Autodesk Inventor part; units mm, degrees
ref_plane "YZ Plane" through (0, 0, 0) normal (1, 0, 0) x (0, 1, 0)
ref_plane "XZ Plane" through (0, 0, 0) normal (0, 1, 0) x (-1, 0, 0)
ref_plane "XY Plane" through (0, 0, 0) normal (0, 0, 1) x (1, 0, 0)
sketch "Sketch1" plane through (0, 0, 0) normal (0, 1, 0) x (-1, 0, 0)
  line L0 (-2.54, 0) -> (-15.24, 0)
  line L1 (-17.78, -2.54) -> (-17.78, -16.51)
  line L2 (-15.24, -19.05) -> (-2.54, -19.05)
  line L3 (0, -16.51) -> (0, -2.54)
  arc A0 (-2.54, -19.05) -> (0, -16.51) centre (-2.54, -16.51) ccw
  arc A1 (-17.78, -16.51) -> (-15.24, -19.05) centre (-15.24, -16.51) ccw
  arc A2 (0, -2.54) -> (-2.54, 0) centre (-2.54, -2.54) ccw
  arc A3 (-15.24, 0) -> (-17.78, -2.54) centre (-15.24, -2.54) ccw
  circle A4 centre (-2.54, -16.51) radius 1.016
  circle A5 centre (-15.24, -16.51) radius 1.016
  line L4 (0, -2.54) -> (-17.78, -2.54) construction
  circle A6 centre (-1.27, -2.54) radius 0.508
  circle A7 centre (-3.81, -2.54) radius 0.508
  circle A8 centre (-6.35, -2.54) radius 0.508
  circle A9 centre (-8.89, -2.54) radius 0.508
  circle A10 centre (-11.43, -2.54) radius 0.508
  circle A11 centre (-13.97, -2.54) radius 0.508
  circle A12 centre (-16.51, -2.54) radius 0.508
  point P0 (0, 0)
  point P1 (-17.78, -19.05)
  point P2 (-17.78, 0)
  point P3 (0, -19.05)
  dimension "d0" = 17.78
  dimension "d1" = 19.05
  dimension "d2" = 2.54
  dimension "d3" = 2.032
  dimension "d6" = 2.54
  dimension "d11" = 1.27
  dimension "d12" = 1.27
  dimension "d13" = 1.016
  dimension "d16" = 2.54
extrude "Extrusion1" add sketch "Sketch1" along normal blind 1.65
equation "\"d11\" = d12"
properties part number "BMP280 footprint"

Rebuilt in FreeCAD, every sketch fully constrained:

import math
import FreeCAD as App
import Part
import Sketcher
Q = App.Units.Quantity

doc = App.newDocument("Part")
body = doc.addObject("PartDesign::Body", "Body")

# Sketch on XZ plane
sketch1 = doc.addObject("Sketcher::SketchObject", "Sketch")
body.addObject(sketch1)
sketch1.AttachmentSupport = (doc.XZ_Plane, [""])
sketch1.MapMode = "FlatFace"
sketch1.addGeometry(Part.ArcOfCircle(Part.Circle(App.Vector(2.5, -2.5, 0), App.Vector(0, 0, 1), 2.5), math.radians(90), math.radians(180)), False)
sketch1.addGeometry(Part.LineSegment(App.Vector(2.5, 0, 0), App.Vector(15.2, 0, 0)), False)
sketch1.addGeometry(Part.ArcOfCircle(Part.Circle(App.Vector(15.2, -2.5, 0), App.Vector(0, 0, 1), 2.5), math.radians(0), math.radians(90)), False)
sketch1.addGeometry(Part.LineSegment(App.Vector(17.8, -2.5, 0), App.Vector(17.8, -16.5, 0)), False)
sketch1.addGeometry(Part.ArcOfCircle(Part.Circle(App.Vector(15.2, -16.5, 0), App.Vector(0, 0, 1), 2.5), math.radians(-90), math.radians(0)), False)
sketch1.addGeometry(Part.LineSegment(App.Vector(15.2, -19.1, 0), App.Vector(2.5, -19.1, 0)), False)
sketch1.addGeometry(Part.ArcOfCircle(Part.Circle(App.Vector(2.5, -16.5, 0), App.Vector(0, 0, 1), 2.5), math.radians(180), math.radians(270)), False)
sketch1.addGeometry(Part.LineSegment(App.Vector(0, -16.5, 0), App.Vector(0, -2.5, 0)), False)
sketch1.addGeometry(Part.Circle(App.Vector(15.2, -16.5, 0), App.Vector(0, 0, 1), 1), False)
sketch1.addGeometry(Part.Circle(App.Vector(2.5, -16.5, 0), App.Vector(0, 0, 1), 1), False)
sketch1.addGeometry(Part.Circle(App.Vector(16.5, -2.5, 0), App.Vector(0, 0, 1), 0.5), False)
sketch1.addGeometry(Part.Circle(App.Vector(14, -2.5, 0), App.Vector(0, 0, 1), 0.5), False)
sketch1.addGeometry(Part.Circle(App.Vector(11.4, -2.5, 0), App.Vector(0, 0, 1), 0.5), False)
sketch1.addGeometry(Part.Circle(App.Vector(8.9, -2.5, 0), App.Vector(0, 0, 1), 0.5), False)
sketch1.addGeometry(Part.Circle(App.Vector(6.3, -2.5, 0), App.Vector(0, 0, 1), 0.5), False)
sketch1.addGeometry(Part.Circle(App.Vector(3.8, -2.5, 0), App.Vector(0, 0, 1), 0.5), False)
sketch1.addGeometry(Part.Circle(App.Vector(1.3, -2.5, 0), App.Vector(0, 0, 1), 0.5), False)
sketch1.addConstraint(Sketcher.Constraint("Tangent", 0, 1, 1, 1))
sketch1.addConstraint(Sketcher.Constraint("Tangent", 1, 2, 2, 2))
sketch1.addConstraint(Sketcher.Constraint("Tangent", 2, 1, 3, 1))
sketch1.addConstraint(Sketcher.Constraint("Tangent", 3, 2, 4, 2))
sketch1.addConstraint(Sketcher.Constraint("Tangent", 4, 1, 5, 1))
sketch1.addConstraint(Sketcher.Constraint("Tangent", 5, 2, 6, 2))
sketch1.addConstraint(Sketcher.Constraint("Tangent", 6, 1, 7, 1))
sketch1.addConstraint(Sketcher.Constraint("Tangent", 7, 2, 0, 2))
sketch1.addConstraint(Sketcher.Constraint("Horizontal", 1))
sketch1.addConstraint(Sketcher.Constraint("Vertical", 3))
sketch1.addConstraint(Sketcher.Constraint("Horizontal", 5))
sketch1.addConstraint(Sketcher.Constraint("Vertical", 7))
sketch1.addConstraint(Sketcher.Constraint("Coincident", 8, 3, 4, 3))
sketch1.addConstraint(Sketcher.Constraint("Coincident", 9, 3, 6, 3))
sketch1.addConstraint(Sketcher.Constraint("Equal", 0, 2))
sketch1.addConstraint(Sketcher.Constraint("Equal", 2, 4))
sketch1.addConstraint(Sketcher.Constraint("Equal", 4, 6))
sketch1.addConstraint(Sketcher.Constraint("Equal", 8, 9))
sketch1.addConstraint(Sketcher.Constraint("Equal", 10, 11))
sketch1.addConstraint(Sketcher.Constraint("Equal", 11, 12))
sketch1.addConstraint(Sketcher.Constraint("Equal", 12, 13))
sketch1.addConstraint(Sketcher.Constraint("Equal", 13, 14))
sketch1.addConstraint(Sketcher.Constraint("Equal", 14, 15))
sketch1.addConstraint(Sketcher.Constraint("Equal", 15, 16))
sketch1.addConstraint(Sketcher.Constraint("PointOnObject", 0, 1, -1))
sketch1.addConstraint(Sketcher.Constraint("PointOnObject", 6, 1, -2))
sketch1.addConstraint(Sketcher.Constraint("Horizontal", 2, 3, 10, 3))
sketch1.addConstraint(Sketcher.Constraint("Horizontal", 10, 3, 11, 3))
sketch1.addConstraint(Sketcher.Constraint("Horizontal", 11, 3, 12, 3))
sketch1.addConstraint(Sketcher.Constraint("Horizontal", 12, 3, 13, 3))
sketch1.addConstraint(Sketcher.Constraint("Horizontal", 13, 3, 14, 3))
sketch1.addConstraint(Sketcher.Constraint("Horizontal", 14, 3, 15, 3))
sketch1.addConstraint(Sketcher.Constraint("Horizontal", 15, 3, 16, 3))
sketch1.addConstraint(Sketcher.Constraint("Radius", 0, Q("0.1 in")))
sketch1.addConstraint(Sketcher.Constraint("Diameter", 8, Q("0.08 in")))
sketch1.addConstraint(Sketcher.Constraint("Diameter", 10, Q("0.04 in")))
sketch1.addConstraint(Sketcher.Constraint("DistanceX", -1, 1, 2, 1, Q("0.7 in")))
sketch1.addConstraint(Sketcher.Constraint("DistanceX", 11, 3, 10, 3, Q("0.1 in")))
sketch1.addConstraint(Sketcher.Constraint("DistanceX", 12, 3, 11, 3, Q("0.1 in")))
sketch1.addConstraint(Sketcher.Constraint("DistanceX", 13, 3, 12, 3, Q("0.1 in")))
sketch1.addConstraint(Sketcher.Constraint("DistanceX", 14, 3, 13, 3, Q("0.1 in")))
sketch1.addConstraint(Sketcher.Constraint("DistanceX", 15, 3, 14, 3, Q("0.1 in")))
sketch1.addConstraint(Sketcher.Constraint("DistanceX", 16, 3, 15, 3, Q("0.1 in")))
sketch1.addConstraint(Sketcher.Constraint("DistanceX", -1, 1, 16, 3, Q("0.05 in")))
sketch1.addConstraint(Sketcher.Constraint("DistanceY", 4, 1, -1, 1, Q("0.75 in")))
pad1 = doc.addObject("PartDesign::Pad", "Pad")
body.addObject(pad1)
pad1.Profile = sketch1
pad1.Length = 1.65
pad1.Reversed = True

doc.recompute()
